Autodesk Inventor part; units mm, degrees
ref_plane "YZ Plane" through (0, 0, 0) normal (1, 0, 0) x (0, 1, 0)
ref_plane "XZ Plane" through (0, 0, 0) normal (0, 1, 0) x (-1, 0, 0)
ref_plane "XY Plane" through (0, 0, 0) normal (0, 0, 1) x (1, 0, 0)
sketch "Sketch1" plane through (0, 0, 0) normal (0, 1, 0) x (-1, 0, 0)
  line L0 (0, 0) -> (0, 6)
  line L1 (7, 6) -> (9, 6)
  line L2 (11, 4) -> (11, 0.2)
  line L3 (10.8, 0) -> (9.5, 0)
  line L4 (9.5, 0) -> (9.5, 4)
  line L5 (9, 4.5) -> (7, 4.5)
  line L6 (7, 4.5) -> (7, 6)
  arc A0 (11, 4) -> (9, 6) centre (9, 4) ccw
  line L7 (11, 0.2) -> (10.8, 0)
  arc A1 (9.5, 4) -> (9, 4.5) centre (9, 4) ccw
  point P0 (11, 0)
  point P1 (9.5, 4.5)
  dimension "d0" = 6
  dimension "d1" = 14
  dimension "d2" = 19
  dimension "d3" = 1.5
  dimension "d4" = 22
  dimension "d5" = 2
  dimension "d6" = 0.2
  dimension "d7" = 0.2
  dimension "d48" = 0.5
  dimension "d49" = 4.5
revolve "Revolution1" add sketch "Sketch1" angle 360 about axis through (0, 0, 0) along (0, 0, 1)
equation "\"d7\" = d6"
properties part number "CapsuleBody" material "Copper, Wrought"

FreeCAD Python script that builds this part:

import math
import FreeCAD as App
import Part
import Sketcher
from FreeCAD import Vector

doc = App.newDocument("Part")
body = doc.addObject("PartDesign::Body", "Body")

# Sketch on XZ plane
sketch1 = body.newObject("Sketcher::SketchObject", "Sketch")
sketch1.AttachmentSupport = (doc.getObject("XZ_Plane"), [""])
sketch1.MapMode = "FlatFace"
sketch1.addGeometry([
    Part.LineSegment(Vector(-9, 6, 0), Vector(-7, 6, 0)),  # 0
    Part.LineSegment(Vector(-7, 6, 0), Vector(-7, 4.5, 0)),  # 1
    Part.LineSegment(Vector(-7, 4.5, 0), Vector(-9, 4.5, 0)),  # 2
    Part.ArcOfCircle(Part.Circle(Vector(-9, 4, 0), Vector(0, 0, 1), 0.5), math.radians(90), math.radians(180)),  # 3
    Part.LineSegment(Vector(-9.5, 4, 0), Vector(-9.5, 0, 0)),  # 4
    Part.LineSegment(Vector(-9.5, 0, 0), Vector(-10.8, 0, 0)),  # 5
    Part.LineSegment(Vector(-10.8, 0, 0), Vector(-11, 0.2, 0)),  # 6
    Part.LineSegment(Vector(-11, 0.2, 0), Vector(-11, 4, 0)),  # 7
    Part.ArcOfCircle(Part.Circle(Vector(-9, 4, 0), Vector(0, 0, 1), 2), math.radians(90), math.radians(180)),  # 8
], False)
sketch1.addConstraint([
    Sketcher.Constraint("Coincident", 0, 2, 1, 1),
    Sketcher.Constraint("Coincident", 1, 2, 2, 1),
    Sketcher.Constraint("Tangent", 2, 2, 3, 1),
    Sketcher.Constraint("Tangent", 3, 2, 4, 1),
    Sketcher.Constraint("Coincident", 4, 2, 5, 1),
    Sketcher.Constraint("Coincident", 5, 2, 6, 1),
    Sketcher.Constraint("Coincident", 6, 2, 7, 1),
    Sketcher.Constraint("Tangent", 7, 2, 8, 2),
    Sketcher.Constraint("Tangent", 8, 1, 0, 1),
    Sketcher.Constraint("Horizontal", 0),
    Sketcher.Constraint("Vertical", 1),
    Sketcher.Constraint("Horizontal", 2),
    Sketcher.Constraint("Vertical", 4),
    Sketcher.Constraint("Horizontal", 5),
    Sketcher.Constraint("Vertical", 7),
    Sketcher.Constraint("Coincident", 8, 3, 3, 3),
    Sketcher.Constraint("PointOnObject", 4, 2, -1),
    Sketcher.Constraint("Radius", 8, 2.0),
    Sketcher.Constraint("Radius", 3, 0.5),
    Sketcher.Constraint("DistanceX", 0, 1, 0, 2, 2.0),
    Sketcher.Constraint("DistanceY", -1, 1, 0, 2, 6.0),
    Sketcher.Constraint("DistanceY", -1, 1, 6, 2, 0.2),
    Sketcher.Constraint("DistanceX", 6, 2, 5, 2, 0.2),
    Sketcher.Constraint("DistanceX", 3, 3, -1, 1, 9.0),
])
revolution = body.newObject("PartDesign::Revolution", "Revolution")
revolution.Profile = sketch1
revolution.ReferenceAxis = (sketch1, ["V_Axis"])
revolution.Angle = 360

doc.recompute()
